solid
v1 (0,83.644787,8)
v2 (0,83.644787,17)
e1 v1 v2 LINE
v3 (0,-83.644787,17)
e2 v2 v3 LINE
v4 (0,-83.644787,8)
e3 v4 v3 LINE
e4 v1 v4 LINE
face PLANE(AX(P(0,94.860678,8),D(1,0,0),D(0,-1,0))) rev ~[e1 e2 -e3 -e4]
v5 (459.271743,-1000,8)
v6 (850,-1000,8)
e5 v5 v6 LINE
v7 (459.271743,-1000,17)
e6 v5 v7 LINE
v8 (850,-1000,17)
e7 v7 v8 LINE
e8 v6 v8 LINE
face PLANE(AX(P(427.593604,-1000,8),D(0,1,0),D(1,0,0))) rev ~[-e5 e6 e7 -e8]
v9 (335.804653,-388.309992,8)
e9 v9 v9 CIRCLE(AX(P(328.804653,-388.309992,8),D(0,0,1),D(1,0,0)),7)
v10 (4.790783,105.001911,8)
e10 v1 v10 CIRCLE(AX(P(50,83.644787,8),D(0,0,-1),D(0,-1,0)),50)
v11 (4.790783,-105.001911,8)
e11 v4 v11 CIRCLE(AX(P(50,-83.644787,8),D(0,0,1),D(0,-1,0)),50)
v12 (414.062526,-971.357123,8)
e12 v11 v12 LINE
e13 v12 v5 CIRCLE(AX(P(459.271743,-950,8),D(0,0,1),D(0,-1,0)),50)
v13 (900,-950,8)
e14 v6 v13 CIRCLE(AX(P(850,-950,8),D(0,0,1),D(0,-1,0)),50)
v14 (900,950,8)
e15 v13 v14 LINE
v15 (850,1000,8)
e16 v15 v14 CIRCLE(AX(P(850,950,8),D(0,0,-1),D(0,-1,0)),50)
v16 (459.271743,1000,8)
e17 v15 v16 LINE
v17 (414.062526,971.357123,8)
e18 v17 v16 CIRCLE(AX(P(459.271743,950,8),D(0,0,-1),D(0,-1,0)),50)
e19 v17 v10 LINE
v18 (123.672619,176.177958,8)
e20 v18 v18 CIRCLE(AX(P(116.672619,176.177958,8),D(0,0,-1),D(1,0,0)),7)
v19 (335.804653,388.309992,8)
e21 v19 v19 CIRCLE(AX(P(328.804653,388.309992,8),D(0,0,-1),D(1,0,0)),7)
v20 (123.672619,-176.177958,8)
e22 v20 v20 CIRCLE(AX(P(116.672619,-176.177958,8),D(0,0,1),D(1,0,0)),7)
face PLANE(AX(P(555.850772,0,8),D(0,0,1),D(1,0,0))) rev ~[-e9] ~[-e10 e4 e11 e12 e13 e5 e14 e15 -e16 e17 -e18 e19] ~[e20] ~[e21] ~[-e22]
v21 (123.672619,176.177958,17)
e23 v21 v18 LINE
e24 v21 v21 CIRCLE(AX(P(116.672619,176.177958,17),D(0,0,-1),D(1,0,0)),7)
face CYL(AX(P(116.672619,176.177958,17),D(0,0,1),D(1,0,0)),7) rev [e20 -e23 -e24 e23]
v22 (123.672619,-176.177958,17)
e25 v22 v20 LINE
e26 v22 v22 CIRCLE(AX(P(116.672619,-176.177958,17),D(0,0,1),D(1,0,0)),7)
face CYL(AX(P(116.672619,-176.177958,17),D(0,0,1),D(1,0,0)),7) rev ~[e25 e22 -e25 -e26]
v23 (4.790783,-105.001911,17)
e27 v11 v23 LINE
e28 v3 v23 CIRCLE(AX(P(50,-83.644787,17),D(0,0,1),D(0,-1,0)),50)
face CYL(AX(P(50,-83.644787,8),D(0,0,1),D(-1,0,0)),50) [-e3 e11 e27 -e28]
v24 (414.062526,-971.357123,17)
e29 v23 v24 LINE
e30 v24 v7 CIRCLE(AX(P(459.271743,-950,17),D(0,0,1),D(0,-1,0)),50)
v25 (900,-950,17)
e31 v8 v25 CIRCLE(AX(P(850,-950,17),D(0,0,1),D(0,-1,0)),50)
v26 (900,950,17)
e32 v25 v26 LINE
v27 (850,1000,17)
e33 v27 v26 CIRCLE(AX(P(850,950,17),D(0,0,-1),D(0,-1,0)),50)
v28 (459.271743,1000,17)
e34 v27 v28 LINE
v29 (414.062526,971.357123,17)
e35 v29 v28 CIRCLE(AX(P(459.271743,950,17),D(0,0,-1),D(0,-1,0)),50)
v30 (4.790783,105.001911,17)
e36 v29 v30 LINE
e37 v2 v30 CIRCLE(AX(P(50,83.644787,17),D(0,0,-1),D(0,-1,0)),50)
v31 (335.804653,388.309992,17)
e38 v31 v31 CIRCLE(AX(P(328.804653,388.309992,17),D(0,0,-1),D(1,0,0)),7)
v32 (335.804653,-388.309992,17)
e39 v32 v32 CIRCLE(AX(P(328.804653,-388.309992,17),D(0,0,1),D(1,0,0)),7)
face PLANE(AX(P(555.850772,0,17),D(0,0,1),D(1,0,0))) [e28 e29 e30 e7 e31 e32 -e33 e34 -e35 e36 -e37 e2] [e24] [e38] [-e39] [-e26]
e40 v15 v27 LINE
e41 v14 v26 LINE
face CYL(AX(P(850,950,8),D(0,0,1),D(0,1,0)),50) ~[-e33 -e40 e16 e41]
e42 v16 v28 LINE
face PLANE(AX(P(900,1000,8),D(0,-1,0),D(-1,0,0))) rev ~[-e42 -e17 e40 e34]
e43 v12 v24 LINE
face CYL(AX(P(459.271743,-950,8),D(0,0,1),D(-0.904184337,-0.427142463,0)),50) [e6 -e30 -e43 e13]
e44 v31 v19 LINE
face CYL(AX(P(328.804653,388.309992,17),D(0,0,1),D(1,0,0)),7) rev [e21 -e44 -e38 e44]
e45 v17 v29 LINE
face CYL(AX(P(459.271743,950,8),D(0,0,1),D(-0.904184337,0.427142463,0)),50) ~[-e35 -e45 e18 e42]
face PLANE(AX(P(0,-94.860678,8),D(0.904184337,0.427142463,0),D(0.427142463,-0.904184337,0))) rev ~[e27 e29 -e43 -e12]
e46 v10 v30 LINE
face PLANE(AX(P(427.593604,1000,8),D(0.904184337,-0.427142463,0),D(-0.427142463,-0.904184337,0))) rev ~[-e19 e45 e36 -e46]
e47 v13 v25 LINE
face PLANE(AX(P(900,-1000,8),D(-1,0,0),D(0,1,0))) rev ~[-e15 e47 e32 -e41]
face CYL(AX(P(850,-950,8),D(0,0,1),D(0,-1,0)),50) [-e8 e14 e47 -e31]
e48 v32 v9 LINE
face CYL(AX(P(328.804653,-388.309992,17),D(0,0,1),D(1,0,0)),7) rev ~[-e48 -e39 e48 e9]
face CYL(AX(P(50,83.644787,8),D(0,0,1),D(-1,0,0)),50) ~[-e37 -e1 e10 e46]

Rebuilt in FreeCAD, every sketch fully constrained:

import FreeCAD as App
import Part
import Sketcher
from FreeCAD import Vector
Q = App.Units.Quantity


def edges_at(feature, points):
    """Names of the edges that pass closest to the given points."""
    edges = feature.Shape.Edges
    near = lambda p: min(range(len(edges)), key=lambda i: edges[i].distToShape(Part.Vertex(*p))[0])
    return sorted({f"Edge{near(p) + 1}" for p in points})


def add_polygon(sketch, points):
    """Adds a closed chain of lines whose ends are joined by coincident constraints."""
    first, n = sketch.GeometryCount, len(points)
    for a, b in zip(points, points[1:] + points[:1]):
        sketch.addGeometry(Part.LineSegment(App.Vector(*a, 0), App.Vector(*b, 0)), False)
    for i in range(n):
        sketch.addConstraint(Sketcher.Constraint("Coincident", first + i, 2, first + (i + 1) % n, 1))

doc = App.newDocument("Part")
body = doc.addObject("PartDesign::Body", "Body")

# Sketch on XY plane
sketch1 = body.newObject("Sketcher::SketchObject", "Sketch")
sketch1.AttachmentSupport = (doc.getObject("XY_Plane"), [""])
sketch1.MapMode = "FlatFace"
add_polygon(sketch1, [(0, 95), (0, -95), (428, -1000), (900, -1000), (900, 1000), (428, 1000)])  # lines 0-5
sketch1.addConstraint([
    Sketcher.Constraint("Vertical", 0),
    Sketcher.Constraint("Horizontal", 2),
    Sketcher.Constraint("Vertical", 3),
    Sketcher.Constraint("Horizontal", 4),
    Sketcher.Constraint("Symmetric", 0, 2, 5, 2, -1, 1),
    Sketcher.Constraint("Symmetric", 1, 2, 4, 2, -1),
    Sketcher.Constraint("DistanceY", 3, 1, 3, 2, Q("2000 mm")),
    Sketcher.Constraint("DistanceX", -1, 1, 2, 2, Q("900 mm")),
    Sketcher.Constraint("DistanceX", 2, 1, 2, 2, Q("472.406396 mm")),
    Sketcher.Constraint("DistanceY", 0, 2, 0, 1, Q("189.721356 mm")),
])
pad1 = body.newObject("PartDesign::Pad", "Pad")
pad1.Profile = sketch1
pad1.Length = 9

# Sketch on XY plane
sketch2 = body.newObject("Sketcher::SketchObject", "Sketch001")
sketch2.AttachmentSupport = (doc.getObject("XY_Plane"), [""])
sketch2.MapMode = "FlatFace"
sketch2.AttachmentOffset = App.Placement(Vector(0, 0, 9), App.Rotation())
sketch2.addGeometry([
    Part.Circle(Vector(329, -388, 0), Vector(0, 0, 1), 7),
    Part.Circle(Vector(117, -176, 0), Vector(0, 0, 1), 7),
], False)
sketch2.addConstraint([
    Sketcher.Constraint("Equal", 0, 1),
    Sketcher.Constraint("Diameter", 0, Q("14 mm")),
    Sketcher.Constraint("DistanceY", 0, 3, -1, 1, Q("388.309992 mm")),
    Sketcher.Constraint("DistanceX", -1, 1, 1, 3, Q("116.672619 mm")),
    Sketcher.Constraint("DistanceX", -1, 1, 0, 3, Q("328.804653 mm")),
    Sketcher.Constraint("DistanceY", 1, 3, -1, 1, Q("176.177958 mm")),
])
pocket1 = body.newObject("PartDesign::Pocket", "Pocket")
pocket1.Profile = sketch2
pocket1.Length = 9
doc.recompute()

mirrored = body.newObject("PartDesign::Mirrored", "Mirrored")
mirrored.Originals = [pocket1]
mirrored.MirrorPlane = (doc.getObject("XZ_Plane"), [""])
body.Tip = mirrored
doc.recompute()

fillet = body.newObject("PartDesign::Fillet", "Fillet")
fillet.Base = (mirrored, edges_at(mirrored, [
    (0, 94.861, 4.5),
    (0, -94.861, 4.5),
    (427.594, -1000, 4.5),
    (900, -1000, 4.5),
    (900, 1000, 4.5),
    (427.594, 1000, 4.5),
]))
fillet.Radius = 50
body2 = doc.addObject("PartDesign::Body", "Body001")
doc.recompute()

body.Placement = App.Placement(Vector(0, 0, 8), App.Rotation(Vector(0, 0, 1), 0))
boolean = body2.newObject("PartDesign::Boolean", "Boolean")
boolean.Type = "Fuse"
boolean.addObjects([body])

doc.recompute()
